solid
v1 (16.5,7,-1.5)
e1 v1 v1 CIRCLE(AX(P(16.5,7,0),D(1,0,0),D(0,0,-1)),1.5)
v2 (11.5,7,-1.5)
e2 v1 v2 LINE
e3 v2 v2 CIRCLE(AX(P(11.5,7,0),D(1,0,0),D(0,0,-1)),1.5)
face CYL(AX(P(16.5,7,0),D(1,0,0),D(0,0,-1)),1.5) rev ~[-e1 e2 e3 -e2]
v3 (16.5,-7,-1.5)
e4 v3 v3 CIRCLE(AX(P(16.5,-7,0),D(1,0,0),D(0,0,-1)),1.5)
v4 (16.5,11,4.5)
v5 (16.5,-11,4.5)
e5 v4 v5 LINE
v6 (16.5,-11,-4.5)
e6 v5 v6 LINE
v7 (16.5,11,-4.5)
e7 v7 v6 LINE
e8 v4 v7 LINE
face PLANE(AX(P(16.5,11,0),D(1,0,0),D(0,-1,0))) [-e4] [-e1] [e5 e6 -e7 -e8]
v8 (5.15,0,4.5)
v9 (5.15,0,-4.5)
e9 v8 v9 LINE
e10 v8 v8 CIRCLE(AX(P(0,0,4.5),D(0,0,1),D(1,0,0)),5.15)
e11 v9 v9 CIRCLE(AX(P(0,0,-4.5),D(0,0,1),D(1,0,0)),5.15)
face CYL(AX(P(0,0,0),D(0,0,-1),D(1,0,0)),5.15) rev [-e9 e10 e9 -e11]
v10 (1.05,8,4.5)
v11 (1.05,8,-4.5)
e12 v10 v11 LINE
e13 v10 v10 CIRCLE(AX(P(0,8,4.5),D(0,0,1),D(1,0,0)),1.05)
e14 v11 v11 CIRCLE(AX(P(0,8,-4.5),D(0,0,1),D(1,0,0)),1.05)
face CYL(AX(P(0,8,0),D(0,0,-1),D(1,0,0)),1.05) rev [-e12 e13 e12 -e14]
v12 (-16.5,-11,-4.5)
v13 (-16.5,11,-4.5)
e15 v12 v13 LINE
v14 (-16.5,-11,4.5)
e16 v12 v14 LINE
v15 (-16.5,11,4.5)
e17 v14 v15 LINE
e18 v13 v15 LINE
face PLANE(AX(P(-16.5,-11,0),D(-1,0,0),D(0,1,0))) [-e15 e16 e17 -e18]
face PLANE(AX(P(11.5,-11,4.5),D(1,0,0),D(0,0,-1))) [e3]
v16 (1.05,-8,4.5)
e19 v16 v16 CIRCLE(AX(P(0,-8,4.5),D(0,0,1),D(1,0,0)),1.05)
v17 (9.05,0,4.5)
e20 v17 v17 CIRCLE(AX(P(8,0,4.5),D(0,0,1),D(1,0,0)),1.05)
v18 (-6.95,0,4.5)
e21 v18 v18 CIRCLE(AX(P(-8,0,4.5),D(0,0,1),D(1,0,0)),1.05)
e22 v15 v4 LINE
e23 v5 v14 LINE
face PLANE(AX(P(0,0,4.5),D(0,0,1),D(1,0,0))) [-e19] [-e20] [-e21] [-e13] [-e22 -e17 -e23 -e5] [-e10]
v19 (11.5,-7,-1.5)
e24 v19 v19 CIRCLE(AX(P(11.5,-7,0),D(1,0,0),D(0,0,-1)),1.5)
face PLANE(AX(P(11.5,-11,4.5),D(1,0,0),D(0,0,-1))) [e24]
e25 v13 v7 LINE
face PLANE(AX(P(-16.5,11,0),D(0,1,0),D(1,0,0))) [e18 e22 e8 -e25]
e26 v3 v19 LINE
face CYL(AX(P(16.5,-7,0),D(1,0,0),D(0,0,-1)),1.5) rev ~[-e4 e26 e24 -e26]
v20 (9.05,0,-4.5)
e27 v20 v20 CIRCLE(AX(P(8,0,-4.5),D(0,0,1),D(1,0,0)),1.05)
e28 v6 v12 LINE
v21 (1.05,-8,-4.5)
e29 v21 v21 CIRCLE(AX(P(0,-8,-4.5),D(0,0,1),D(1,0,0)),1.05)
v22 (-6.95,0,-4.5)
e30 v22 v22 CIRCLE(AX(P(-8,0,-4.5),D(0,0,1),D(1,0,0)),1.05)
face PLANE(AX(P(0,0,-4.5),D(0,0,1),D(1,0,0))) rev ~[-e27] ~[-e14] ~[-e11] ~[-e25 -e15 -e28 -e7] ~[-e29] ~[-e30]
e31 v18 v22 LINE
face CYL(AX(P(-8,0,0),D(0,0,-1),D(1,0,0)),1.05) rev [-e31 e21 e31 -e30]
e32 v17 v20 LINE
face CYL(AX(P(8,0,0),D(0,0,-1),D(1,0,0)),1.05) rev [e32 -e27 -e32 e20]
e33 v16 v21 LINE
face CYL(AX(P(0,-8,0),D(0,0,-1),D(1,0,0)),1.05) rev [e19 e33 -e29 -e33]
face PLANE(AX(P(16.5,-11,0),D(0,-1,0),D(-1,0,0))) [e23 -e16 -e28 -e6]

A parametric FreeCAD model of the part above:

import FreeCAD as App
import Part
import Sketcher
Q = App.Units.Quantity

doc = App.newDocument("Part")
body = doc.addObject("PartDesign::Body", "Body")

# Sketch on XY plane
sketch1 = body.newObject("Sketcher::SketchObject", "Sketch")
sketch1.AttachmentSupport = (doc.getObject("XY_Plane"), [""])
sketch1.MapMode = "FlatFace"
sketch1.addGeometry([
    Part.LineSegment(App.Vector(16.5, 11, 0), App.Vector(-16.5, 11, 0)),  # 0
    Part.LineSegment(App.Vector(-16.5, 11, 0), App.Vector(-16.5, -11, 0)),  # 1
    Part.LineSegment(App.Vector(-16.5, -11, 0), App.Vector(16.5, -11, 0)),  # 2
    Part.LineSegment(App.Vector(16.5, -11, 0), App.Vector(16.5, 11, 0)),  # 3
    Part.Circle(App.Vector(0, -8, 0), App.Vector(0, 0, 1), 1.1),  # 4
    Part.Circle(App.Vector(-8, 0, 0), App.Vector(0, 0, 1), 1.1),  # 5
    Part.Circle(App.Vector(0, 0, 0), App.Vector(0, 0, 1), 5.2),  # 6
    Part.Circle(App.Vector(8, 0, 0), App.Vector(0, 0, 1), 1.1),  # 7
    Part.Circle(App.Vector(0, 8, 0), App.Vector(0, 0, 1), 1.1),  # 8
], False)
sketch1.addConstraint([
    Sketcher.Constraint("Coincident", 0, 2, 1, 1),
    Sketcher.Constraint("Coincident", 1, 2, 2, 1),
    Sketcher.Constraint("Coincident", 2, 2, 3, 1),
    Sketcher.Constraint("Coincident", 3, 2, 0, 1),
    Sketcher.Constraint("Horizontal", 0),
    Sketcher.Constraint("Vertical", 1),
    Sketcher.Constraint("Horizontal", 2),
    Sketcher.Constraint("Vertical", 3),
    Sketcher.Constraint("Coincident", 6, 3, -1, 1),
    Sketcher.Constraint("Equal", 4, 5),
    Sketcher.Constraint("Equal", 5, 7),
    Sketcher.Constraint("Equal", 7, 8),
    Sketcher.Constraint("Symmetric", 5, 3, 7, 3, -1, 1),
    Sketcher.Constraint("Symmetric", 4, 3, 8, 3, -1, 1),
    Sketcher.Constraint("Symmetric", 0, 2, 2, 2, -1, 1),
    Sketcher.Constraint("PointOnObject", 4, 3, -2),
    Sketcher.Constraint("PointOnObject", 5, 3, -1),
    Sketcher.Constraint("Diameter", 4, Q("2.1 mm")),
    Sketcher.Constraint("Diameter", 6, Q("10.3 mm")),
    Sketcher.Constraint("DistanceX", 0, 2, 0, 1, Q("33 mm")),
    Sketcher.Constraint("DistanceY", 1, 2, 1, 1, Q("22 mm")),
    Sketcher.Constraint("DistanceY", 4, 3, -1, 1, Q("8 mm")),
    Sketcher.Constraint("DistanceX", 5, 3, -1, 1, Q("8 mm")),
])
pad1 = body.newObject("PartDesign::Pad", "Pad")
pad1.Profile = sketch1
pad1.Length = 9
pad1.Midplane = True

# Sketch on YZ plane
sketch2 = body.newObject("Sketcher::SketchObject", "Sketch001")
sketch2.AttachmentSupport = (doc.getObject("YZ_Plane"), [""])
sketch2.MapMode = "FlatFace"
sketch2.AttachmentOffset = App.Placement(App.Vector(0, 0, 16.5), App.Rotation())
sketch2.addGeometry([
    Part.Circle(App.Vector(-7, 0, 0), App.Vector(0, 0, 1), 1.5),
    Part.Circle(App.Vector(7, 0, 0), App.Vector(0, 0, 1), 1.5),
], False)
sketch2.addConstraint([
    Sketcher.Constraint("Equal", 0, 1),
    Sketcher.Constraint("Symmetric", 0, 3, 1, 3, -1, 1),
    Sketcher.Constraint("PointOnObject", 0, 3, -1),
    Sketcher.Constraint("Diameter", 0, Q("3 mm")),
    Sketcher.Constraint("DistanceX", 0, 3, -1, 1, Q("7 mm")),
])
pocket1 = body.newObject("PartDesign::Pocket", "Pocket")
pocket1.Profile = sketch2
pocket1.Length = 5

doc.recompute()
